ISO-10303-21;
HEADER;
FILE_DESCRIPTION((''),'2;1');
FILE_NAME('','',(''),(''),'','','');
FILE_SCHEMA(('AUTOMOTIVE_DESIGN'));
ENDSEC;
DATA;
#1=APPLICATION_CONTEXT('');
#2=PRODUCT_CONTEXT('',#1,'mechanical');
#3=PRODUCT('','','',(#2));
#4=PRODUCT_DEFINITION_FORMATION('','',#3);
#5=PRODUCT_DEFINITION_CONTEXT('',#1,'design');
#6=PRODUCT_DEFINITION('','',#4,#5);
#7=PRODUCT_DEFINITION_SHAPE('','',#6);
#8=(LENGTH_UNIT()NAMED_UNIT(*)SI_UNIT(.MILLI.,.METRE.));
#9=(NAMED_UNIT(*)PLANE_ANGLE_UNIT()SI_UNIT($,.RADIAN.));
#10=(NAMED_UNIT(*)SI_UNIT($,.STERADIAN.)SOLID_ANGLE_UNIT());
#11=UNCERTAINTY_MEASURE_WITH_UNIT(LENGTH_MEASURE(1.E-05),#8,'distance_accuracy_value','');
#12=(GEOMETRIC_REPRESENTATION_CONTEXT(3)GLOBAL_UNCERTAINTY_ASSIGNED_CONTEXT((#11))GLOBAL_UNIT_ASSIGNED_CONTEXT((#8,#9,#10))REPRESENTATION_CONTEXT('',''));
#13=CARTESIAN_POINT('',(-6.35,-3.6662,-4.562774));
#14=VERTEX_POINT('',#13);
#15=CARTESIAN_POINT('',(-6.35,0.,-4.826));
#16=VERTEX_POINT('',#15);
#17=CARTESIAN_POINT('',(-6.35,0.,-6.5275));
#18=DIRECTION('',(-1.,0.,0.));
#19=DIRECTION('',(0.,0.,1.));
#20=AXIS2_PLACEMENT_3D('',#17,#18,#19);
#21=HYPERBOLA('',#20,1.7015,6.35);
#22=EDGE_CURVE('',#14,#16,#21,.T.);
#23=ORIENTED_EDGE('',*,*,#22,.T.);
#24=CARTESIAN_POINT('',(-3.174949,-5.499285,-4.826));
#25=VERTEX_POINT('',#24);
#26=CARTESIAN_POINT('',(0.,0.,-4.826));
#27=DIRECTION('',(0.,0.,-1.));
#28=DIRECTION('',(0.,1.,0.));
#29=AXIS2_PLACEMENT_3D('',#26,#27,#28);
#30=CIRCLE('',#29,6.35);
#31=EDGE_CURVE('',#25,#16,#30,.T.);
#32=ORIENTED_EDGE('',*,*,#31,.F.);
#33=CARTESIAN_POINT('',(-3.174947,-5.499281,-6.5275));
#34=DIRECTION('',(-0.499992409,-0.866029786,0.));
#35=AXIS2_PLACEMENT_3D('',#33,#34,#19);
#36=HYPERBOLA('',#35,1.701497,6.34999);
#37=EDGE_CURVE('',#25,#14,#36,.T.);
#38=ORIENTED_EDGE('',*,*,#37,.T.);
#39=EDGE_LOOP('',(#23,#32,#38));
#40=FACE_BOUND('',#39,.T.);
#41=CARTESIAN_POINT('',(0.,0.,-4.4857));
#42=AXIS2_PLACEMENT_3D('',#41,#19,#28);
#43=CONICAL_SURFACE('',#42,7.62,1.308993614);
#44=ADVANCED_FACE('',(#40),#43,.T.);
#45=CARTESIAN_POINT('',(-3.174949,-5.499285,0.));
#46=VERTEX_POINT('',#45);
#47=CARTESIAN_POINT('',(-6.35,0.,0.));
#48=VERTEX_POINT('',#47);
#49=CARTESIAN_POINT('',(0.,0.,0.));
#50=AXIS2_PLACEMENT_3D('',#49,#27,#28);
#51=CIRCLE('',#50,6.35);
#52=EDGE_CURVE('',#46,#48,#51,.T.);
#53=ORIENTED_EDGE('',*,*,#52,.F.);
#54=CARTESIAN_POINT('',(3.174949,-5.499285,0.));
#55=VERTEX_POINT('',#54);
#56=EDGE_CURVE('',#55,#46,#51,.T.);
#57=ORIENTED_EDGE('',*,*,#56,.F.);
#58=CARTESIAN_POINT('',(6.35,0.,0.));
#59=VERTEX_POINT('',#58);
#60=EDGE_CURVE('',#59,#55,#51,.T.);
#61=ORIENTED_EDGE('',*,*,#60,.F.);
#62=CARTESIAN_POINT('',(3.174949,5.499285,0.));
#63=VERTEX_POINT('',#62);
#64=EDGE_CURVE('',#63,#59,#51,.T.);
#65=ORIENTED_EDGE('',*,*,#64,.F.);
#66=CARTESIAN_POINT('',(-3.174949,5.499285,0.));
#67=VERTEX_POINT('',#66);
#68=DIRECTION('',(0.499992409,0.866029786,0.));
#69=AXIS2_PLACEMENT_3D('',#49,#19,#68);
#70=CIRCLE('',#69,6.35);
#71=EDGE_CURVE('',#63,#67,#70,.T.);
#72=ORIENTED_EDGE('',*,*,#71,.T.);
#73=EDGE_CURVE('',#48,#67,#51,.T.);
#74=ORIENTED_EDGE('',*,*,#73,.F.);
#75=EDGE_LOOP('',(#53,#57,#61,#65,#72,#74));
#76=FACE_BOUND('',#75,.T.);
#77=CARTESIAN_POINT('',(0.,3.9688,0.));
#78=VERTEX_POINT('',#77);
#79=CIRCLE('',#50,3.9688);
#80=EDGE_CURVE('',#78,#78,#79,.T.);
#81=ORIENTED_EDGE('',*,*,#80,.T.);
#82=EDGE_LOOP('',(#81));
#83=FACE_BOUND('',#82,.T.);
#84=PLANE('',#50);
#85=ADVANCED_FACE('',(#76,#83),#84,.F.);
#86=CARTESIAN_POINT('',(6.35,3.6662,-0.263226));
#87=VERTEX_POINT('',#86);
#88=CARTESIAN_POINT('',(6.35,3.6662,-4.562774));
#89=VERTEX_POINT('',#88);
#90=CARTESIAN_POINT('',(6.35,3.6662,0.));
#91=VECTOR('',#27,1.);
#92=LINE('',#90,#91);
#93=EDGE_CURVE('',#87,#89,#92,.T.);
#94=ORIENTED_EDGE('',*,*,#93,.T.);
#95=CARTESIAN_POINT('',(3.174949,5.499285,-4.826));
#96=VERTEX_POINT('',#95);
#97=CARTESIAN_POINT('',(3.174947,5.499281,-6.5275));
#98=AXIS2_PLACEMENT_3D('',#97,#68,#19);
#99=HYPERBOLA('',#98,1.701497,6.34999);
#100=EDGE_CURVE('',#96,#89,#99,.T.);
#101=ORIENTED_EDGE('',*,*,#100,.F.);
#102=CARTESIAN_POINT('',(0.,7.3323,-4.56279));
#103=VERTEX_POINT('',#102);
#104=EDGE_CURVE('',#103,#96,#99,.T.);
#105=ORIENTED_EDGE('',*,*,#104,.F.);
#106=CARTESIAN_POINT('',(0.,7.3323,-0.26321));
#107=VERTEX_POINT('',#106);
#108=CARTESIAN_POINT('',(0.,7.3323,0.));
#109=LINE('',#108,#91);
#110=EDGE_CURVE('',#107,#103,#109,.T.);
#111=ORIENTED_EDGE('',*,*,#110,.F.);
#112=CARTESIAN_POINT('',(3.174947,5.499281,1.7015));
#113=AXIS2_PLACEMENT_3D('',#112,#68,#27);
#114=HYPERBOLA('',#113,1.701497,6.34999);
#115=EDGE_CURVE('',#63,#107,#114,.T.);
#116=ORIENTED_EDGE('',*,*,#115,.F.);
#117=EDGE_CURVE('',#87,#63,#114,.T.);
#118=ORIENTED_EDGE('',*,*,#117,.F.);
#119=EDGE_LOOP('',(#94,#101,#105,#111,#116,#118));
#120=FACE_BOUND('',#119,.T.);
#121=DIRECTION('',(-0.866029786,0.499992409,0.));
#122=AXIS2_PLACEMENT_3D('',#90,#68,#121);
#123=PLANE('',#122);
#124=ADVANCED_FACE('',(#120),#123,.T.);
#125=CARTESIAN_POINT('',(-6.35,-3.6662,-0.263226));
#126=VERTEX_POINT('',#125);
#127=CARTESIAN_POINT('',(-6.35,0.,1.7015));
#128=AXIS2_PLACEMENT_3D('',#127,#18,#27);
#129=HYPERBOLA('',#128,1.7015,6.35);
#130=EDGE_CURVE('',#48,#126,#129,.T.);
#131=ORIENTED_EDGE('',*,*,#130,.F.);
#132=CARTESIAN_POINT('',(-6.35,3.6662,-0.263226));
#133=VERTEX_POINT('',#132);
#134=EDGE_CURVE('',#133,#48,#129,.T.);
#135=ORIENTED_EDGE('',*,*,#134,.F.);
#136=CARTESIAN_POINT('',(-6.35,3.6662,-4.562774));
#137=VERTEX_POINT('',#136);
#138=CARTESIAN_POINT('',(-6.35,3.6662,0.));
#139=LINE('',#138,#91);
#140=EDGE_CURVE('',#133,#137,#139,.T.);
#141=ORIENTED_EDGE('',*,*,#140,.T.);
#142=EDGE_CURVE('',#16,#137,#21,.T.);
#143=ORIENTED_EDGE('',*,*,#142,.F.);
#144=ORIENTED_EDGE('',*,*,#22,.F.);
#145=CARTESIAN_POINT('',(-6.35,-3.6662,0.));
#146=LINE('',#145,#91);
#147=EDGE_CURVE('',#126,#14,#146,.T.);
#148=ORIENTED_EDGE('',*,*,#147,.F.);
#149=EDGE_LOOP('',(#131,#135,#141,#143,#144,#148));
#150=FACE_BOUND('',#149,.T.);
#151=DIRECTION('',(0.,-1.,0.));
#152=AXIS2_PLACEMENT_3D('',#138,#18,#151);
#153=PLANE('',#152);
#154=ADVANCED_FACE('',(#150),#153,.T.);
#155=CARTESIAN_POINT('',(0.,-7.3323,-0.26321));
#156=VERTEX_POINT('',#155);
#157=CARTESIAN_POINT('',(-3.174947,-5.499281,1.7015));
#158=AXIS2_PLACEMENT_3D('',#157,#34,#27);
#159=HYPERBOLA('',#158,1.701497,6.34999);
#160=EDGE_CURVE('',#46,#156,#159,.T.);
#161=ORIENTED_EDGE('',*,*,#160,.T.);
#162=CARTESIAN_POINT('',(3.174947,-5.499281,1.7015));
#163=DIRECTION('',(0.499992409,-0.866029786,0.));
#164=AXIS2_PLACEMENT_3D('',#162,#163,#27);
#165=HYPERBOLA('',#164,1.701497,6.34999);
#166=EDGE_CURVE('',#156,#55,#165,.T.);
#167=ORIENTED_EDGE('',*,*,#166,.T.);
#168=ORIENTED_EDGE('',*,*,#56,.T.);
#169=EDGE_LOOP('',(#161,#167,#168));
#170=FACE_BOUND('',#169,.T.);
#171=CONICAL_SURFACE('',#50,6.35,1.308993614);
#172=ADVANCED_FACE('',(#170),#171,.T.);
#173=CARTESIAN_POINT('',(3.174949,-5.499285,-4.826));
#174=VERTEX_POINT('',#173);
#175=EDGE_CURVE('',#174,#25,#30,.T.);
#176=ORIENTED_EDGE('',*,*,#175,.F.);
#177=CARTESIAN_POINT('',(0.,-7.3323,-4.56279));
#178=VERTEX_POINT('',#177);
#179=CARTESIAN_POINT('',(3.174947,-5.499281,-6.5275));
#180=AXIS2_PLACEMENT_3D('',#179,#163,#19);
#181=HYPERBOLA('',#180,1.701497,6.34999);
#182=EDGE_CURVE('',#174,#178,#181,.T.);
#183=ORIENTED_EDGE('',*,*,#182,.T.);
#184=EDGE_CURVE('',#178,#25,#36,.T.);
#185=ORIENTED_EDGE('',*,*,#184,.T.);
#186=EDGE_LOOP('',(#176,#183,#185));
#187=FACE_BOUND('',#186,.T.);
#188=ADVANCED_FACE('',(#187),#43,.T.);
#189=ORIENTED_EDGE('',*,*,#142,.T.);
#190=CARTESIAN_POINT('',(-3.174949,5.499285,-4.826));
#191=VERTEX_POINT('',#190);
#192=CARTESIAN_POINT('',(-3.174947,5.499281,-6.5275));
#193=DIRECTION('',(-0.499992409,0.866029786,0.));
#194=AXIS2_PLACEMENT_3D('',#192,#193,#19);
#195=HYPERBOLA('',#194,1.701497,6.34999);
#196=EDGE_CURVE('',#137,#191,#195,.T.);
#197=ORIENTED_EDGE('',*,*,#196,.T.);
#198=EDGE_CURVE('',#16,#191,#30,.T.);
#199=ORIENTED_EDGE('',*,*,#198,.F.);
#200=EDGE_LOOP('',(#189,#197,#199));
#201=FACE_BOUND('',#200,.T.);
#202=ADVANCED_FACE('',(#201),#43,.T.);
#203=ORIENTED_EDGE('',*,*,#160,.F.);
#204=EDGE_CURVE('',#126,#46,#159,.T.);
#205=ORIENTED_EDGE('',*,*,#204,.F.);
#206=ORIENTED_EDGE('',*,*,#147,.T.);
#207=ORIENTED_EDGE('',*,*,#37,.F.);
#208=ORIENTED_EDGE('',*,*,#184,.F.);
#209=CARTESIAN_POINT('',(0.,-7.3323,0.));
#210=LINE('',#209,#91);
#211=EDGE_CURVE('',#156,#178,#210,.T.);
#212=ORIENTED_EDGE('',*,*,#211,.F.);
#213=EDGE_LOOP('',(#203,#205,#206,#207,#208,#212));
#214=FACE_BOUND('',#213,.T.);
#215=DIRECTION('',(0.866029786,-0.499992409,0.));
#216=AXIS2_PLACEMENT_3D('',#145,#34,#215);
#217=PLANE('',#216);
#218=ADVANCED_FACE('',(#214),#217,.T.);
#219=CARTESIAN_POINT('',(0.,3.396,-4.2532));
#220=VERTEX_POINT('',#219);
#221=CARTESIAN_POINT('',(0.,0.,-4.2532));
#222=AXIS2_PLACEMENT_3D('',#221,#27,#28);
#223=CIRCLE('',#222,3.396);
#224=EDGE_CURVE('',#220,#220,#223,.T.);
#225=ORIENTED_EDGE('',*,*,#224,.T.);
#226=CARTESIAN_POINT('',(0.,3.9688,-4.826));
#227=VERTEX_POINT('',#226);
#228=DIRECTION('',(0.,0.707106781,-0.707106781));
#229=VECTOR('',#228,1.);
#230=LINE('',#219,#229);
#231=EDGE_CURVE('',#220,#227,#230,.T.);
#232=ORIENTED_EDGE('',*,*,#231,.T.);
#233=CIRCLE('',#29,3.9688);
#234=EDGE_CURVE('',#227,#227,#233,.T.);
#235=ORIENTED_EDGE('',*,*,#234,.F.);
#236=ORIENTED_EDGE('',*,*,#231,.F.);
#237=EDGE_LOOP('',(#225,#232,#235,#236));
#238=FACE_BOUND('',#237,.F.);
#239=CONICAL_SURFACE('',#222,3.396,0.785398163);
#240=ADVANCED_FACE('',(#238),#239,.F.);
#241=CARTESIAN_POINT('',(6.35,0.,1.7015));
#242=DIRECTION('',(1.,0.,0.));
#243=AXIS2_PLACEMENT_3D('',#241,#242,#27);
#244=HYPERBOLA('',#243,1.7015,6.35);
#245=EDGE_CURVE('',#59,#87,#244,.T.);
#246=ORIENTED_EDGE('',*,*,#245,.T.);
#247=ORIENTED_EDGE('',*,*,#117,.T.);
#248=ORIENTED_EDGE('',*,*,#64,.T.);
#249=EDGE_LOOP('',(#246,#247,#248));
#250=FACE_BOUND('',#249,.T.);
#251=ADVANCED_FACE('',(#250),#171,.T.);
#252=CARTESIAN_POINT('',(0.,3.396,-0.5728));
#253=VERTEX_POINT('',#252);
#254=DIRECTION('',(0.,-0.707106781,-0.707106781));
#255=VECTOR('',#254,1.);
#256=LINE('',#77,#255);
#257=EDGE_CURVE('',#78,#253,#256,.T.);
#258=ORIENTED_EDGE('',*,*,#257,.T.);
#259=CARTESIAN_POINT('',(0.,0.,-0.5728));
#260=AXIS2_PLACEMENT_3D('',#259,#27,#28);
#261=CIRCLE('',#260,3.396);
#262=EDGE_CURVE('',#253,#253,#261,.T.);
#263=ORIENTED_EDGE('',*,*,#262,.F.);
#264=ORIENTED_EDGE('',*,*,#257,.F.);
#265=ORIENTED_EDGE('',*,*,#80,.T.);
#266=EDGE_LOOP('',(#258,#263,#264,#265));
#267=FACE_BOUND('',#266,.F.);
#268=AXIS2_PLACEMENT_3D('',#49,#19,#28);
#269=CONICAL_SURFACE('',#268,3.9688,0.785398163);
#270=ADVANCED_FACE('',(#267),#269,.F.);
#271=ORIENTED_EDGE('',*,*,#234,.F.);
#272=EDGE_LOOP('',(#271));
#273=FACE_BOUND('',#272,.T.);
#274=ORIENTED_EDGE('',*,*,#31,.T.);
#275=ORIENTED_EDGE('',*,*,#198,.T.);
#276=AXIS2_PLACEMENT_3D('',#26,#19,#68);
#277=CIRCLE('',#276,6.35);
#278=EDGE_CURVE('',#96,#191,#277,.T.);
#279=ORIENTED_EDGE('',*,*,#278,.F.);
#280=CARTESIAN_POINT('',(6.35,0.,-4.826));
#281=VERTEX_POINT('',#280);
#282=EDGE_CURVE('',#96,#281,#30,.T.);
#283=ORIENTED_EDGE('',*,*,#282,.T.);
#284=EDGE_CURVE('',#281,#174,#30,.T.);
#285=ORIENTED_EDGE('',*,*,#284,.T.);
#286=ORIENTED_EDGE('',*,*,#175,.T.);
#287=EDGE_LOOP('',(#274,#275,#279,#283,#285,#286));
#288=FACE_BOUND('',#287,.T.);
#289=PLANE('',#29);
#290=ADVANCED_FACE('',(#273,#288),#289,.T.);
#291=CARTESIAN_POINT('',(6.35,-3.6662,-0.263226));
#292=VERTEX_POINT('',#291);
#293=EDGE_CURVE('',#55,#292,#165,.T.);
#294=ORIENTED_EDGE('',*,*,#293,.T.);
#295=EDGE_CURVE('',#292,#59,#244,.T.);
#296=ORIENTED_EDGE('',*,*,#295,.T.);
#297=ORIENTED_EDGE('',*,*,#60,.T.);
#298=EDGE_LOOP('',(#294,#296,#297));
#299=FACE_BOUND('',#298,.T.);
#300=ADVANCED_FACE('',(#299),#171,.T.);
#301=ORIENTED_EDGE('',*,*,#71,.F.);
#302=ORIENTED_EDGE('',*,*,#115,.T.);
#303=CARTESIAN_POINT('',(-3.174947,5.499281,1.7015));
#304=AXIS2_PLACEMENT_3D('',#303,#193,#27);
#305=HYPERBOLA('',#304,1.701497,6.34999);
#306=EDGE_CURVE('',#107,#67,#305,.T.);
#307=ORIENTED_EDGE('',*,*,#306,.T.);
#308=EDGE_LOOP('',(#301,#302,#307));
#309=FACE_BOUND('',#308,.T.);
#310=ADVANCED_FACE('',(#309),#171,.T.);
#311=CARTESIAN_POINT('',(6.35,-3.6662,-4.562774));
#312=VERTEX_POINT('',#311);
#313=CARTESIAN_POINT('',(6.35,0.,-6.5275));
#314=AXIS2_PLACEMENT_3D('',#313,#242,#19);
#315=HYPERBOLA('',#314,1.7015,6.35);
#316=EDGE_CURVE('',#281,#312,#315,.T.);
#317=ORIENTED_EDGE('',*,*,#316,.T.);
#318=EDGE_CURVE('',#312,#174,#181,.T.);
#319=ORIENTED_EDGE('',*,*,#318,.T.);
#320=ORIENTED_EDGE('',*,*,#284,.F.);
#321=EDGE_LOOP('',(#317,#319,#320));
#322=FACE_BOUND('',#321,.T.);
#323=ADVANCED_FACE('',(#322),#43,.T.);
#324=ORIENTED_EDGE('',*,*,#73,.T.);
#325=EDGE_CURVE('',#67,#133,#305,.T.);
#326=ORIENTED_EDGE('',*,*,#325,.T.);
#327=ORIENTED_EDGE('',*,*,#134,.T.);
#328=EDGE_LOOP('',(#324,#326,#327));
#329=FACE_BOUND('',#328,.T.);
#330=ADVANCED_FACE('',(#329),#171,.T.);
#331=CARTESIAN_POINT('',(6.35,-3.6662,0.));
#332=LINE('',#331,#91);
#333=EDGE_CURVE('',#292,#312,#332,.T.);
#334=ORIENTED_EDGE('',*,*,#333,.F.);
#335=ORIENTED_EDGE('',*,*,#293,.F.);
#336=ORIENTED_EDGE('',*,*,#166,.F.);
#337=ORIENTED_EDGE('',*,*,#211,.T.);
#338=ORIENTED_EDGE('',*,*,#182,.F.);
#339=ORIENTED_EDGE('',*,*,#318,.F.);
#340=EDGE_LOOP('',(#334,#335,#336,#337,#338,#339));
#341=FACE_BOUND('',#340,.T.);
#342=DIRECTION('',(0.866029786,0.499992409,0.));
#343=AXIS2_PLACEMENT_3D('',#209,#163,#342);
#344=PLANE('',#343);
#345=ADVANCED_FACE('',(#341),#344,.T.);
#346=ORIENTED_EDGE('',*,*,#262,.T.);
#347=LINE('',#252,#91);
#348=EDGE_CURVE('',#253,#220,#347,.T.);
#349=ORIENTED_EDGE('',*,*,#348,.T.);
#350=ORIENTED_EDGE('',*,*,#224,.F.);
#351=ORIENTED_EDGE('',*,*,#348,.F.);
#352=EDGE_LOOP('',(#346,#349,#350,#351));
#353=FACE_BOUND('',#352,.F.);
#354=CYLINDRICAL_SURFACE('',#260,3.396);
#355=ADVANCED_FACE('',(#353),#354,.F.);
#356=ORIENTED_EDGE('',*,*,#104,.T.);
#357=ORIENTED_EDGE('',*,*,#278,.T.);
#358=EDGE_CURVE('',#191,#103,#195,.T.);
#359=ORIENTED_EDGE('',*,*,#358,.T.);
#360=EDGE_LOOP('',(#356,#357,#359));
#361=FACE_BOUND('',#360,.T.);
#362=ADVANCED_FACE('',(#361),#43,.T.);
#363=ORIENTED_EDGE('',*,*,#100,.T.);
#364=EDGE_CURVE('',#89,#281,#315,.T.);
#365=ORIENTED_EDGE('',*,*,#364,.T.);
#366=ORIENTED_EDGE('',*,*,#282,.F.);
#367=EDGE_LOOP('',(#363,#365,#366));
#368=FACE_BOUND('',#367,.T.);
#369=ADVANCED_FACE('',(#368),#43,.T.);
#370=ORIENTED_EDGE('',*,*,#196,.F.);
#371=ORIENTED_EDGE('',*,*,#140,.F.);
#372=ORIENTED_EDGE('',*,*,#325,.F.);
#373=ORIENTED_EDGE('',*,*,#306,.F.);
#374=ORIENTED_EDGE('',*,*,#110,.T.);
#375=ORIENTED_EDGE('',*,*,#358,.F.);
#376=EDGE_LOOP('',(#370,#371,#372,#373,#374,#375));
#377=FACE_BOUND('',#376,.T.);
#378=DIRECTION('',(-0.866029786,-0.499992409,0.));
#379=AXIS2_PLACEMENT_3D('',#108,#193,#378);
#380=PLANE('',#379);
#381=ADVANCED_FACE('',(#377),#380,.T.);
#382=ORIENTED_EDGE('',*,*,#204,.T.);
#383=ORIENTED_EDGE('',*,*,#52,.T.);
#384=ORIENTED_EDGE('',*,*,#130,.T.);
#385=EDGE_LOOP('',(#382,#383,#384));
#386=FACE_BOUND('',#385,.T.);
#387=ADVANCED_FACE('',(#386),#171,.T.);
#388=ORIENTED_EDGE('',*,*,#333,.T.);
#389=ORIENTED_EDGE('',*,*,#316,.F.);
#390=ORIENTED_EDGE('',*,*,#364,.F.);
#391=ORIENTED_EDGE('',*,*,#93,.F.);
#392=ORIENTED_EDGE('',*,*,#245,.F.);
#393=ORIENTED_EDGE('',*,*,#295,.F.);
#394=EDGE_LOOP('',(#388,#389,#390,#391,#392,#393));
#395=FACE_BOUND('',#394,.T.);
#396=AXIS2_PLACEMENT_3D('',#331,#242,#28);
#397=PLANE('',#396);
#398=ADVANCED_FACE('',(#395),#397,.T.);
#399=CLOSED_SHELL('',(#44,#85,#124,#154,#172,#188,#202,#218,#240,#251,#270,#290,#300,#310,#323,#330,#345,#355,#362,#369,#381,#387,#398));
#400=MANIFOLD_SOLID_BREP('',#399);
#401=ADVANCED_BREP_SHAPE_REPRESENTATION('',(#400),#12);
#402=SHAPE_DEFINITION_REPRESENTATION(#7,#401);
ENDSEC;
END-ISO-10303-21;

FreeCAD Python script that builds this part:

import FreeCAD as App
import Part
import Sketcher
from FreeCAD import Vector
Q = App.Units.Quantity


def add_polygon(sketch, points):
    """Adds a closed chain of lines whose ends are joined by coincident constraints."""
    first, n = sketch.GeometryCount, len(points)
    for a, b in zip(points, points[1:] + points[:1]):
        sketch.addGeometry(Part.LineSegment(App.Vector(*a, 0), App.Vector(*b, 0)), False)
    for i in range(n):
        sketch.addConstraint(Sketcher.Constraint("Coincident", first + i, 2, first + (i + 1) % n, 1))

doc = App.newDocument("Part")
body = doc.addObject("PartDesign::Body", "Body")

sketch1 = body.newObject("Sketcher::SketchObject", "Sketch")
sketch1.AttachmentSupport = (doc.getObject("YZ_Plane"), [""])
sketch1.MapMode = "FlatFace"
add_polygon(sketch1, [(0, 0), (0, -4.8), (6.3, -4.8), (7.6, -4.5), (7.6, -0.3), (6.3, 0)])
sketch1.addConstraint([
    Sketcher.Constraint("Vertical", 0),
    Sketcher.Constraint("Horizontal", 1),
    Sketcher.Constraint("Vertical", 3),
    Sketcher.Constraint("Horizontal", 5),
    Sketcher.Constraint("Coincident", 5, 2, -1, 1),
    Sketcher.Constraint("Vertical", 1, 2, 4, 2),
    Sketcher.Constraint("Equal", 2, 4),
    Sketcher.Constraint("Angle", 2, Q("15.0002 deg")),
    Sketcher.Constraint("DistanceX", 1, 1, 1, 2, Q("0.25 in")),
    Sketcher.Constraint("DistanceY", 0, 2, 0, 1, Q("0.19 in")),
    Sketcher.Constraint("DistanceX", -1, 1, 2, 2, Q("0.3 in")),
])
revolution = body.newObject("PartDesign::Revolution", "Revolution")
revolution.Profile = sketch1
revolution.ReferenceAxis = (sketch1, ["V_Axis"])
revolution.Angle = 360

sketch2 = body.newObject("Sketcher::SketchObject", "Sketch001")
sketch2.AttachmentSupport = (doc.getObject("XY_Plane"), [""])
sketch2.MapMode = "FlatFace"
add_polygon(sketch2, [(13, 13), (-13, 13), (-13, -13), (13, -13)])
add_polygon(sketch2, [(-6, -4), (-6, 4), (0, 7), (6, 4), (6, -4), (0, -7)])
sketch2.addConstraint([
    Sketcher.Constraint("Horizontal", 0),
    Sketcher.Constraint("Vertical", 1),
    Sketcher.Constraint("Horizontal", 2),
    Sketcher.Constraint("Vertical", 3),
    Sketcher.Constraint("Vertical", 4),
    Sketcher.Constraint("Vertical", 7),
    Sketcher.Constraint("Symmetric", 0, 2, 2, 2, -1, 1),
    Sketcher.Constraint("Symmetric", 4, 2, 7, 2, -1, 1),
    Sketcher.Constraint("Symmetric", 5, 2, 8, 2, -1, 1),
    Sketcher.Constraint("PointOnObject", 5, 2, -2),
    Sketcher.Constraint("Parallel", 6, 9),
    Sketcher.Constraint("Horizontal", 4, 2, 6, 2),
    Sketcher.Constraint("Equal", 2, 1),
    Sketcher.Constraint("DistanceX", 0, 2, 0, 1, Q("1 in")),
    Sketcher.Constraint("Angle", 5, Q("29.9995 deg")),
    Sketcher.Constraint("DistanceX", 4, 2, 6, 2, Q("0.5 in")),
    Sketcher.Constraint("DistanceY", 7, 2, 5, 2, Q("0.433 in")),
])
pocket1 = body.newObject("PartDesign::Pocket", "Pocket")
pocket1.Profile = sketch2
pocket1.Length = Q("0.19 in")

sketch3 = body.newObject("Sketcher::SketchObject", "Sketch002")
sketch3.AttachmentSupport = (doc.getObject("YZ_Plane"), [""])
sketch3.MapMode = "FlatFace"
add_polygon(sketch3, [(0, 0), (0, -4.8), (4, -4.8), (3.4, -4.3), (3.4, -0.6), (4, 0)])
sketch3.addConstraint([
    Sketcher.Constraint("Vertical", 0),
    Sketcher.Constraint("Horizontal", 1),
    Sketcher.Constraint("Vertical", 3),
    Sketcher.Constraint("Horizontal", 5),
    Sketcher.Constraint("Coincident", 5, 2, -1, 1),
    Sketcher.Constraint("Perpendicular", 2, 4),
    Sketcher.Constraint("Vertical", 1, 2, 4, 2),
    Sketcher.Constraint("Equal", 2, 4),
    Sketcher.Constraint("DistanceY", 0, 2, 0, 1, Q("0.19 in")),
    Sketcher.Constraint("DistanceX", 1, 1, 1, 2, Q("0.156252 in")),
    Sketcher.Constraint("DistanceY", 3, 1, 3, 2, Q("0.1449 in")),
])
groove = body.newObject("PartDesign::Groove", "Groove")
groove.Profile = sketch3
groove.ReferenceAxis = (sketch3, ["V_Axis"])
groove.Angle = 360

doc.recompute()
